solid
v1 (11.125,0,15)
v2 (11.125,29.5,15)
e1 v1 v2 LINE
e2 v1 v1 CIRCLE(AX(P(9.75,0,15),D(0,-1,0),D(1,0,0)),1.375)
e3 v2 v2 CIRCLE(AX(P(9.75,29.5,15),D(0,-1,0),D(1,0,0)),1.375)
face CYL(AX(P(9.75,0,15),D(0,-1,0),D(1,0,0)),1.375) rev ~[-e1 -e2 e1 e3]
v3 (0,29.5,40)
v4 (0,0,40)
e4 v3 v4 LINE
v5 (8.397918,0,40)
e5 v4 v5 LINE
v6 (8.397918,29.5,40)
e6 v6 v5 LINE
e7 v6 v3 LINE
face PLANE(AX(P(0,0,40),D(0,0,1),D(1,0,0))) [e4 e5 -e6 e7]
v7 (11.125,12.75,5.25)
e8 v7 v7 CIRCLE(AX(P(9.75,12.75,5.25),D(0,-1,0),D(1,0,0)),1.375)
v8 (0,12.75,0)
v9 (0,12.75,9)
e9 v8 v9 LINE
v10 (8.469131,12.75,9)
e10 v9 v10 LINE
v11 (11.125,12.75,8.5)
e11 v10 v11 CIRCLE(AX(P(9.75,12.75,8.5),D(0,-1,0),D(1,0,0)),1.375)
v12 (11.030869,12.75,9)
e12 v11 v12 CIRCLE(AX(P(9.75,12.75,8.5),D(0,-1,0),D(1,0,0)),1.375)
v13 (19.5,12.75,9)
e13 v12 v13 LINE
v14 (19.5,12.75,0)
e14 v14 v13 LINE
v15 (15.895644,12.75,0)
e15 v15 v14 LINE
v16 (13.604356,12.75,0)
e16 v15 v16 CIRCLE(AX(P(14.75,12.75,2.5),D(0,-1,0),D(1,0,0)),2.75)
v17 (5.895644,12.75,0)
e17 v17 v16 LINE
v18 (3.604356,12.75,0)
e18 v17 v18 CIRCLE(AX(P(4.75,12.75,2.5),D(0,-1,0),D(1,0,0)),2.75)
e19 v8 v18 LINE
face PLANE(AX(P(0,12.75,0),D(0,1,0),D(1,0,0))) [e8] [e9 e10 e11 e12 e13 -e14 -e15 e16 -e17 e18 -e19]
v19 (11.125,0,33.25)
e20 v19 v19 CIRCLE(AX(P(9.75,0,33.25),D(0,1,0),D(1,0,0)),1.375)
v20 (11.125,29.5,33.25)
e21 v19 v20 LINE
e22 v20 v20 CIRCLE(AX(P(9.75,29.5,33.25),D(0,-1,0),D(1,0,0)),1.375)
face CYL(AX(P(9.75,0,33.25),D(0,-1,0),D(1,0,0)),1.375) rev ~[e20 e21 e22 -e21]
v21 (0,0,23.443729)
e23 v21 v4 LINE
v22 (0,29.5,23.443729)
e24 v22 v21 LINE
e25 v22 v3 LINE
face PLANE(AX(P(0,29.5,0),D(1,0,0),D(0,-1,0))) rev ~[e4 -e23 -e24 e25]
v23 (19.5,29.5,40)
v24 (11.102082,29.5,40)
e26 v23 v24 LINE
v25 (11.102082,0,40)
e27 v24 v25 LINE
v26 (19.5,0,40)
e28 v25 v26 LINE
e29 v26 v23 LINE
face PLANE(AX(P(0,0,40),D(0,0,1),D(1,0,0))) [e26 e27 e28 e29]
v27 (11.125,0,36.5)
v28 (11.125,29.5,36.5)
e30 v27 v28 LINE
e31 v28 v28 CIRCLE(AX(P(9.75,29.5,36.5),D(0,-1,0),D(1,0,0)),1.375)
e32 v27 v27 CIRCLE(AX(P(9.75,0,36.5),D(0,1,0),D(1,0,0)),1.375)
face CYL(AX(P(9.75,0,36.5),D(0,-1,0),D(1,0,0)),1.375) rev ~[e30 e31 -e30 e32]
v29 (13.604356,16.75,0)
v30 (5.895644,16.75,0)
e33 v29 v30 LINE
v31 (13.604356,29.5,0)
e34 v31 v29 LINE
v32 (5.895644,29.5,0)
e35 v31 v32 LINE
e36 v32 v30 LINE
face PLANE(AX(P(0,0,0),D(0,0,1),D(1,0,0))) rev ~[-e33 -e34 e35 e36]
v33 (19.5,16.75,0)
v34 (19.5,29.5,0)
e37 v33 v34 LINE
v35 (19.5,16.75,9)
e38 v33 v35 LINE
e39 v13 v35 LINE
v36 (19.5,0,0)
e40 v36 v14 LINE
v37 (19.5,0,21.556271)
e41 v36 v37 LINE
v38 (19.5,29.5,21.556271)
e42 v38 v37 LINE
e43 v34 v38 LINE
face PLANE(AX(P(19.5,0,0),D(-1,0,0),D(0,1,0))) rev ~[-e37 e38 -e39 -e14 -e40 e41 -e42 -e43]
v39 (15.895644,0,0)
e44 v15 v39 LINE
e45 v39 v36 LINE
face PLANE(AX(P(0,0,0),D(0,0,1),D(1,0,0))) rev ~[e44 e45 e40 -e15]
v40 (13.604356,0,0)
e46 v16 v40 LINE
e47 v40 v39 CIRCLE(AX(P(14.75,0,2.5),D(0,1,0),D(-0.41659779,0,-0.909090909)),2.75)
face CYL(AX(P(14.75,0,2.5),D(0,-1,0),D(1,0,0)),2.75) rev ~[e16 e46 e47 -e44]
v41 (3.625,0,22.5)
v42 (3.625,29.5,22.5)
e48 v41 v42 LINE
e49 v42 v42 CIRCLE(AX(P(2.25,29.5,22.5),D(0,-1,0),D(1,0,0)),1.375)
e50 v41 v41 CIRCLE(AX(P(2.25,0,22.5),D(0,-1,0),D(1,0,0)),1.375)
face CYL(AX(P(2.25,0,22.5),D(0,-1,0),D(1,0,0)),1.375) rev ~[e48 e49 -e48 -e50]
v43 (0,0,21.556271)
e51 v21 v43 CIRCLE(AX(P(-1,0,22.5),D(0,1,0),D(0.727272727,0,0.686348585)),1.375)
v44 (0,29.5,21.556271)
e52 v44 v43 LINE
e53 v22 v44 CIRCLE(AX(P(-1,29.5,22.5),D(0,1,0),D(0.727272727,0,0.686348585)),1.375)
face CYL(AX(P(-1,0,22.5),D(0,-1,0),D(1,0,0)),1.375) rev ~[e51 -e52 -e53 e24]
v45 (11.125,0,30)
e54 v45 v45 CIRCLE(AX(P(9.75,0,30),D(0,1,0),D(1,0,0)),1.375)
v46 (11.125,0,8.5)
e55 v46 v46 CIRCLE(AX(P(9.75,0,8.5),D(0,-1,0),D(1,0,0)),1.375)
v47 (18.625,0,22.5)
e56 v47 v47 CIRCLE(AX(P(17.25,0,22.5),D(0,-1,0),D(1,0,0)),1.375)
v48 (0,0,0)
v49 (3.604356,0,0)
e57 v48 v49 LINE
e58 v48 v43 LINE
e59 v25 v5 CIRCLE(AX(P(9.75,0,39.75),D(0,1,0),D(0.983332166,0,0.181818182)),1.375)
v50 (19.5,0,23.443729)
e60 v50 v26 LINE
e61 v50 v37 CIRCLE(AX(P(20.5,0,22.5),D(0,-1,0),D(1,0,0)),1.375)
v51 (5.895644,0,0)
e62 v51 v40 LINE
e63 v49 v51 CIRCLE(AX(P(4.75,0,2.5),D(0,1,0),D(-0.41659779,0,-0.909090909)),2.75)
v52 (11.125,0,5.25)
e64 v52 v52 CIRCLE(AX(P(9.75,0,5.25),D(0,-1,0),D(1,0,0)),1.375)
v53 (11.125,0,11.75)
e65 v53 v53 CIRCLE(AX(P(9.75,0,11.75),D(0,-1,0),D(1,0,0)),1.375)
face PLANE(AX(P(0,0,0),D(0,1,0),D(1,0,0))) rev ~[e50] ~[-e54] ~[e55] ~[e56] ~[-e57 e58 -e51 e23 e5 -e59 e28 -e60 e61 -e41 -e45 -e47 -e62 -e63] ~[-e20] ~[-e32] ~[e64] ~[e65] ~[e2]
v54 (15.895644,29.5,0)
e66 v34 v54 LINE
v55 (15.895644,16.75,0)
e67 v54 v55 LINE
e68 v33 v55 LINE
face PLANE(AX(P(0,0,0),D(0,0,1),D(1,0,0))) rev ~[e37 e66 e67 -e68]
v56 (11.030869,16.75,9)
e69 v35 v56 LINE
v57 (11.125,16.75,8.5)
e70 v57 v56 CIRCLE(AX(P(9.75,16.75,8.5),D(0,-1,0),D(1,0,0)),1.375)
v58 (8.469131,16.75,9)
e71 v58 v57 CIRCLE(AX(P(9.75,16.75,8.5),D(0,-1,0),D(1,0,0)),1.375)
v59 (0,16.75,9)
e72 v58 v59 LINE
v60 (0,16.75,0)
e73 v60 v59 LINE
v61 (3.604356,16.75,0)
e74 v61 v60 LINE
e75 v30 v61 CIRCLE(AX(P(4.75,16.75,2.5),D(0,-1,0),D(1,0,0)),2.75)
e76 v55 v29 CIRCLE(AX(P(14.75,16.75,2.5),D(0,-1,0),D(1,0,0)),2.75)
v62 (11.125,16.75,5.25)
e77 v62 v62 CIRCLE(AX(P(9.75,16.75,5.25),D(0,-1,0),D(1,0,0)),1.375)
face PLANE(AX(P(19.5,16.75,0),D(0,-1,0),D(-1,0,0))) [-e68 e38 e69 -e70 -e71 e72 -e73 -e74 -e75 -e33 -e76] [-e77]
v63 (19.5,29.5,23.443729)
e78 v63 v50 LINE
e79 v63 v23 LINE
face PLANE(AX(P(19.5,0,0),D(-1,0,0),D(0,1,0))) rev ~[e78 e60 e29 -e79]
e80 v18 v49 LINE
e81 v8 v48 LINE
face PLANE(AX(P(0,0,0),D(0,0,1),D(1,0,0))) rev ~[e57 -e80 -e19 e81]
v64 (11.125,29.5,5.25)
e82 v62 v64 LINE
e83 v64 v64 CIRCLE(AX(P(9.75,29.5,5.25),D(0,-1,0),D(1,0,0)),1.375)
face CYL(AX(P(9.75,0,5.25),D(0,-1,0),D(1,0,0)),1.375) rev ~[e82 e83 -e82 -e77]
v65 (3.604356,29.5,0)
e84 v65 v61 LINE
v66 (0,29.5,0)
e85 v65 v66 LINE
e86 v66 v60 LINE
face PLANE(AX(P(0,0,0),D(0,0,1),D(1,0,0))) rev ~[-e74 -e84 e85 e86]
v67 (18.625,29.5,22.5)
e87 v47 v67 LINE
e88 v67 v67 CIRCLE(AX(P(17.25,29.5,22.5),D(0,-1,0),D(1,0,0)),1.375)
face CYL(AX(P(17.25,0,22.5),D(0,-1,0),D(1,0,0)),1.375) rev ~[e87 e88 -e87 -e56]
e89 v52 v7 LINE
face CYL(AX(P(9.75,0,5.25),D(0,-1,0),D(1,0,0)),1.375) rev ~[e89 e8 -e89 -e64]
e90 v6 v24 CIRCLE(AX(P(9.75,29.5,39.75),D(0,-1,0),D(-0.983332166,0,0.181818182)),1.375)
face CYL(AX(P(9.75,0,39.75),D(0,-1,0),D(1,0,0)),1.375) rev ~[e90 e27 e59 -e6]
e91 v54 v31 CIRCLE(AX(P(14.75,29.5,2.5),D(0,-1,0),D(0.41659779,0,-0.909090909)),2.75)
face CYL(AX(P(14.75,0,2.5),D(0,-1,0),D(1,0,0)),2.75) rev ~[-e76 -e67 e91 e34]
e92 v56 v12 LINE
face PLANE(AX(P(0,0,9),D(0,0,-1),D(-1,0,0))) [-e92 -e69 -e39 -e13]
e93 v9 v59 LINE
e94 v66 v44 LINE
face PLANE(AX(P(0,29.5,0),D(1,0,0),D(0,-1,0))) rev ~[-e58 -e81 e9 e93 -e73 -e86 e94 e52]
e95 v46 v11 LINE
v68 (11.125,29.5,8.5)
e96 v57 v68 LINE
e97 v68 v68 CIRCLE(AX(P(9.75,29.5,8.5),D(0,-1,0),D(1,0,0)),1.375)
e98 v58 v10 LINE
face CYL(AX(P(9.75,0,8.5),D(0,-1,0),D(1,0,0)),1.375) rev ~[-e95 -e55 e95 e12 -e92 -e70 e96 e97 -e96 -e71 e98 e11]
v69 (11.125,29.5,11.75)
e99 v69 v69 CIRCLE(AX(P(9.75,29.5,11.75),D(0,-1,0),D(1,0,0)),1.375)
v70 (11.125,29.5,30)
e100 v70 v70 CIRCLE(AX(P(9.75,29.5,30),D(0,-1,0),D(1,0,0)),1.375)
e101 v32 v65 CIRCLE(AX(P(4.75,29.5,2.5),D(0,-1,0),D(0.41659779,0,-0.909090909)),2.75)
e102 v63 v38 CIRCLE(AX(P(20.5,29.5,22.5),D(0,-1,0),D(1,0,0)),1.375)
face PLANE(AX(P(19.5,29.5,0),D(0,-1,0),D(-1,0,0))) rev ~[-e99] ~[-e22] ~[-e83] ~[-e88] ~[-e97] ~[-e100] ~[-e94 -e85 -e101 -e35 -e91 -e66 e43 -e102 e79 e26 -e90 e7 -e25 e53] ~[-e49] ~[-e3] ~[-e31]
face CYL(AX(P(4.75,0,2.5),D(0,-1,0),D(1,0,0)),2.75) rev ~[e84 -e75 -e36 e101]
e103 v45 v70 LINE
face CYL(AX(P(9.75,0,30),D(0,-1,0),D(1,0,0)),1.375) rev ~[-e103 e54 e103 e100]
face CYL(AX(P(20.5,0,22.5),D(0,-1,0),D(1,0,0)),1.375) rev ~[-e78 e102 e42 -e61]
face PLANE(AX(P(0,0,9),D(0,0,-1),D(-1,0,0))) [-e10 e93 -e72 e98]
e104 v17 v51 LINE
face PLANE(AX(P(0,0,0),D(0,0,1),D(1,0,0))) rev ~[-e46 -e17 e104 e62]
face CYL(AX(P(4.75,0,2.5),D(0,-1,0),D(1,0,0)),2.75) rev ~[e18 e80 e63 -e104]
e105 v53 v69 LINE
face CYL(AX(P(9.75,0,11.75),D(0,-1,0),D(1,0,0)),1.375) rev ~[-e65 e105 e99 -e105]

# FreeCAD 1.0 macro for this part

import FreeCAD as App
import Part
import Sketcher

V = App.Vector


def add_polygon(sketch, points):
    """Adds a closed chain of lines whose ends are joined by coincident constraints."""
    first, n = sketch.GeometryCount, len(points)
    for a, b in zip(points, points[1:] + points[:1]):
        sketch.addGeometry(Part.LineSegment(App.Vector(*a, 0), App.Vector(*b, 0)), False)
    for i in range(n):
        sketch.addConstraint(Sketcher.Constraint("Coincident", first + i, 2, first + (i + 1) % n, 1))

doc = App.newDocument("Part")
body = doc.addObject("PartDesign::Body", "Body")

# Sketch on XY plane
sketch1 = body.newObject("Sketcher::SketchObject", "Sketch")
sketch1.AttachmentSupport = (doc.getObject("XY_Plane"), [""])
sketch1.MapMode = "FlatFace"
add_polygon(sketch1, [(0, 30), (0, 0), (20, 0), (20, 30)])  # lines 0-3
sketch1.addConstraint([
    Sketcher.Constraint("Vertical", 0),
    Sketcher.Constraint("Horizontal", 1),
    Sketcher.Constraint("Vertical", 2),
    Sketcher.Constraint("Horizontal", 3),
    Sketcher.Constraint("Coincident", 0, 2, -1, 1),
    Sketcher.Constraint("DistanceX", 1, 1, 1, 2, 19.5),
    Sketcher.Constraint("DistanceY", 0, 2, 0, 1, 29.5),
])
pad1 = body.newObject("PartDesign::Pad", "Pad")
pad1.Profile = sketch1
pad1.Length = 40

# Sketch on XZ plane
sketch2 = body.newObject("Sketcher::SketchObject", "Sketch001")
sketch2.AttachmentSupport = (doc.getObject("XZ_Plane"), [""])
sketch2.MapMode = "FlatFace"
sketch2.addGeometry([
    Part.Circle(V(4.8, 2.5, 0), V(0, 0, 1), 2.8),
    Part.Circle(V(14.8, 2.5, 0), V(0, 0, 1), 2.8),
], False)
sketch2.addConstraint([
    Sketcher.Constraint("Equal", 0, 1),
    Sketcher.Constraint("Horizontal", 0, 3, 1, 3),
    Sketcher.Constraint("Diameter", 0, 5.5),
    Sketcher.Constraint("DistanceX", 0, 3, 1, 3, 10.0),
    Sketcher.Constraint("DistanceY", -1, 1, 0, 3, 2.5),
    Sketcher.Constraint("DistanceX", -1, 1, 0, 3, 4.75),
])
pocket1 = body.newObject("PartDesign::Pocket", "Pocket")
pocket1.Profile = sketch2
pocket1.Type = "ThroughAll"

# Sketch on XY plane
sketch3 = body.newObject("Sketcher::SketchObject", "Sketch002")
sketch3.AttachmentSupport = (doc.getObject("XY_Plane"), [""])
sketch3.MapMode = "FlatFace"
add_polygon(sketch3, [(0, 16.8), (19.5, 16.8), (19.5, 12.8), (0, 12.8)])  # lines 0-3
sketch3.addConstraint([
    Sketcher.Constraint("Horizontal", 0),
    Sketcher.Constraint("Vertical", 1),
    Sketcher.Constraint("Horizontal", 2),
    Sketcher.Constraint("Vertical", 3),
    Sketcher.Constraint("PointOnObject", 2, 2, -2),
    Sketcher.Constraint("DistanceY", 1, 2, 1, 1, 4.0),
    Sketcher.Constraint("DistanceX", 0, 1, 0, 2, 19.5),
    Sketcher.Constraint("DistanceY", -1, 1, 0, 2, 16.75),
])
pocket2 = body.newObject("PartDesign::Pocket", "Pocket001")
pocket2.Profile = sketch3
pocket2.Length = 9
pocket2.Reversed = True

# Sketch on XZ plane
sketch4 = body.newObject("Sketcher::SketchObject", "Sketch003")
sketch4.AttachmentSupport = (doc.getObject("XZ_Plane"), [""])
sketch4.MapMode = "FlatFace"
sketch4.addGeometry([
    Part.Circle(V(9.8, 39.8, 0), V(0, 0, 1), 1.4),  # 0
    Part.Circle(V(9.8, 30, 0), V(0, 0, 1), 1.4),  # 1
    Part.Circle(V(9.8, 33.2, 0), V(0, 0, 1), 1.4),  # 2
    Part.Circle(V(9.8, 36.5, 0), V(0, 0, 1), 1.4),  # 3
    Part.Circle(V(2.2, 22.5, 0), V(0, 0, 1), 1.4),  # 4
    Part.Circle(V(-1, 22.5, 0), V(0, 0, 1), 1.4),  # 5
    Part.Circle(V(-4.2, 22.5, 0), V(0, 0, 1), 1.4),  # 6
    Part.Circle(V(-7.5, 22.5, 0), V(0, 0, 1), 1.4),  # 7
    Part.Circle(V(9.8, 15, 0), V(0, 0, 1), 1.4),  # 8
    Part.Circle(V(9.8, 11.8, 0), V(0, 0, 1), 1.4),  # 9
    Part.Circle(V(9.8, 8.5, 0), V(0, 0, 1), 1.4),  # 10
    Part.Circle(V(9.8, 5.2, 0), V(0, 0, 1), 1.4),  # 11
    Part.Circle(V(17.2, 22.5, 0), V(0, 0, 1), 1.4),  # 12
    Part.Circle(V(20.5, 22.5, 0), V(0, 0, 1), 1.4),  # 13
    Part.Circle(V(23.8, 22.5, 0), V(0, 0, 1), 1.4),  # 14
    Part.Circle(V(27, 22.5, 0), V(0, 0, 1), 1.4),  # 15
], False)
sketch4.addConstraint([
    Sketcher.Constraint("Equal", 0, 1),
    Sketcher.Constraint("Equal", 1, 2),
    Sketcher.Constraint("Equal", 2, 3),
    Sketcher.Constraint("Equal", 3, 4),
    Sketcher.Constraint("Equal", 4, 5),
    Sketcher.Constraint("Equal", 5, 6),
    Sketcher.Constraint("Equal", 6, 7),
    Sketcher.Constraint("Equal", 7, 8),
    Sketcher.Constraint("Equal", 8, 9),
    Sketcher.Constraint("Equal", 9, 10),
    Sketcher.Constraint("Equal", 10, 11),
    Sketcher.Constraint("Equal", 11, 12),
    Sketcher.Constraint("Equal", 12, 13),
    Sketcher.Constraint("Equal", 13, 14),
    Sketcher.Constraint("Equal", 14, 15),
    Sketcher.Constraint("Horizontal", 4, 3, 5, 3),
    Sketcher.Constraint("Horizontal", 5, 3, 6, 3),
    Sketcher.Constraint("Horizontal", 6, 3, 7, 3),
    Sketcher.Constraint("Horizontal", 7, 3, 12, 3),
    Sketcher.Constraint("Horizontal", 12, 3, 13, 3),
    Sketcher.Constraint("Horizontal", 13, 3, 14, 3),
    Sketcher.Constraint("Horizontal", 14, 3, 15, 3),
    Sketcher.Constraint("Vertical", 0, 3, 1, 3),
    Sketcher.Constraint("Vertical", 1, 3, 2, 3),
    Sketcher.Constraint("Vertical", 2, 3, 3, 3),
    Sketcher.Constraint("Vertical", 3, 3, 8, 3),
    Sketcher.Constraint("Vertical", 8, 3, 9, 3),
    Sketcher.Constraint("Vertical", 9, 3, 10, 3),
    Sketcher.Constraint("Vertical", 10, 3, 11, 3),
    Sketcher.Constraint("Diameter", 0, 2.75),
    Sketcher.Constraint("DistanceX", 7, 3, -1, 1, 7.5),
    Sketcher.Constraint("DistanceX", 4, 3, 1, 3, 7.5),
    Sketcher.Constraint("DistanceY", 4, 3, 1, 3, 7.5),
    Sketcher.Constraint("DistanceY", 8, 3, 4, 3, 7.5),
    Sketcher.Constraint("DistanceX", 1, 3, 12, 3, 7.5),
    Sketcher.Constraint("DistanceY", 1, 3, 2, 3, 3.25),
    Sketcher.Constraint("DistanceY", 3, 3, 0, 3, 3.25),
    Sketcher.Constraint("DistanceY", 2, 3, 3, 3, 3.25),
    Sketcher.Constraint("DistanceX", 5, 3, 4, 3, 3.25),
    Sketcher.Constraint("DistanceX", 6, 3, 5, 3, 3.25),
    Sketcher.Constraint("DistanceX", 7, 3, 6, 3, 3.25),
    Sketcher.Constraint("DistanceY", 9, 3, 8, 3, 3.25),
    Sketcher.Constraint("DistanceY", 10, 3, 9, 3, 3.25),
    Sketcher.Constraint("DistanceY", 11, 3, 10, 3, 3.25),
    Sketcher.Constraint("DistanceX", 12, 3, 13, 3, 3.25),
    Sketcher.Constraint("DistanceX", 13, 3, 14, 3, 3.25),
    Sketcher.Constraint("DistanceX", 14, 3, 15, 3, 3.25),
    Sketcher.Constraint("DistanceY", -1, 1, 1, 3, 30.0),
])
pocket3 = body.newObject("PartDesign::Pocket", "Pocket002")
pocket3.Profile = sketch4
pocket3.Type = "ThroughAll"

doc.recompute()
